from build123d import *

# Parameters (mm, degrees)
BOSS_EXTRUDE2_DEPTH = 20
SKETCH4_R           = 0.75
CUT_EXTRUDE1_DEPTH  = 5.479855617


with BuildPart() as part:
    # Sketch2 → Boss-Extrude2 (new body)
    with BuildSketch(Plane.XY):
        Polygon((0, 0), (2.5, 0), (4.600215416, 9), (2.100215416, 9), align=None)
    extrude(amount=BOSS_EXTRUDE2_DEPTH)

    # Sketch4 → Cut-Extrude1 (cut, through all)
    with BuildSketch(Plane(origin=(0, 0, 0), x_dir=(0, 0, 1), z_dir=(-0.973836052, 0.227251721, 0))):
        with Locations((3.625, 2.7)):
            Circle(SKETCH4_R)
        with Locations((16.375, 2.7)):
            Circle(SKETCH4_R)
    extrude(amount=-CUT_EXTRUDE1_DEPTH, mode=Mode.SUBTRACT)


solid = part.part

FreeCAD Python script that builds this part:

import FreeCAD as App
import Part
import Sketcher


def add_polygon(sketch, points):
    """Adds a closed chain of lines whose ends are joined by coincident constraints."""
    first, n = sketch.GeometryCount, len(points)
    for a, b in zip(points, points[1:] + points[:1]):
        sketch.addGeometry(Part.LineSegment(App.Vector(*a, 0), App.Vector(*b, 0)), False)
    for i in range(n):
        sketch.addConstraint(Sketcher.Constraint("Coincident", first + i, 2, first + (i + 1) % n, 1))

doc = App.newDocument("Part")
body = doc.addObject("PartDesign::Body", "Body")

# Sketch on XY plane
sketch1 = doc.addObject("Sketcher::SketchObject", "Sketch")
body.addObject(sketch1)
sketch1.AttachmentSupport = (doc.XY_Plane, [""])
sketch1.MapMode = "FlatFace"
add_polygon(sketch1, [(0, 0), (2.5, 0), (4.600215, 9), (2.100215, 9)])  # lines 0-3
sketch1.addConstraint(Sketcher.Constraint("Horizontal", 0))
sketch1.addConstraint(Sketcher.Constraint("Horizontal", 2))
sketch1.addConstraint(Sketcher.Constraint("Coincident", 3, 2, -1, 1))
sketch1.addConstraint(Sketcher.Constraint("Parallel", 1, 3))
sketch1.addConstraint(Sketcher.Constraint("DistanceX", 0, 1, 0, 2, 2.5))
sketch1.addConstraint(Sketcher.Constraint("DistanceY", -1, 1, 1, 2, 9.0))
sketch1.addConstraint(Sketcher.Constraint("Distance", 1, 9.241802))
pad1 = doc.addObject("PartDesign::Pad", "Pad")
body.addObject(pad1)
pad1.Profile = sketch1
pad1.Length = 20

# Sketch on an angled plane
sketch2 = doc.addObject("Sketcher::SketchObject", "Sketch001")
body.addObject(sketch2)
sketch2.Placement = App.Placement(App.Vector(0, 0, 0), App.Rotation(App.Vector(0, 0, 1), App.Vector(0.227251721, 0.973836052, 0), App.Vector(-0.973836052, 0.227251721, 0), "ZXY"))
sketch2.addGeometry(Part.Circle(App.Vector(3.625, 2.7, 0), App.Vector(0, 0, 1), 0.75), False)
sketch2.addGeometry(Part.Circle(App.Vector(16.375, 2.7, 0), App.Vector(0, 0, 1), 0.75), False)
sketch2.addConstraint(Sketcher.Constraint("Equal", 0, 1))
sketch2.addConstraint(Sketcher.Constraint("Horizontal", 0, 3, 1, 3))
sketch2.addConstraint(Sketcher.Constraint("Diameter", 0, 1.5))
sketch2.addConstraint(Sketcher.Constraint("DistanceY", -1, 1, 0, 3, 2.7))
sketch2.addConstraint(Sketcher.Constraint("DistanceX", 0, 3, 1, 3, 12.75))
sketch2.addConstraint(Sketcher.Constraint("DistanceX", -1, 1, 0, 3, 3.625))
pocket1 = doc.addObject("PartDesign::Pocket", "Pocket")
body.addObject(pocket1)
pocket1.Profile = sketch2
pocket1.Type = "ThroughAll"

doc.recompute()
